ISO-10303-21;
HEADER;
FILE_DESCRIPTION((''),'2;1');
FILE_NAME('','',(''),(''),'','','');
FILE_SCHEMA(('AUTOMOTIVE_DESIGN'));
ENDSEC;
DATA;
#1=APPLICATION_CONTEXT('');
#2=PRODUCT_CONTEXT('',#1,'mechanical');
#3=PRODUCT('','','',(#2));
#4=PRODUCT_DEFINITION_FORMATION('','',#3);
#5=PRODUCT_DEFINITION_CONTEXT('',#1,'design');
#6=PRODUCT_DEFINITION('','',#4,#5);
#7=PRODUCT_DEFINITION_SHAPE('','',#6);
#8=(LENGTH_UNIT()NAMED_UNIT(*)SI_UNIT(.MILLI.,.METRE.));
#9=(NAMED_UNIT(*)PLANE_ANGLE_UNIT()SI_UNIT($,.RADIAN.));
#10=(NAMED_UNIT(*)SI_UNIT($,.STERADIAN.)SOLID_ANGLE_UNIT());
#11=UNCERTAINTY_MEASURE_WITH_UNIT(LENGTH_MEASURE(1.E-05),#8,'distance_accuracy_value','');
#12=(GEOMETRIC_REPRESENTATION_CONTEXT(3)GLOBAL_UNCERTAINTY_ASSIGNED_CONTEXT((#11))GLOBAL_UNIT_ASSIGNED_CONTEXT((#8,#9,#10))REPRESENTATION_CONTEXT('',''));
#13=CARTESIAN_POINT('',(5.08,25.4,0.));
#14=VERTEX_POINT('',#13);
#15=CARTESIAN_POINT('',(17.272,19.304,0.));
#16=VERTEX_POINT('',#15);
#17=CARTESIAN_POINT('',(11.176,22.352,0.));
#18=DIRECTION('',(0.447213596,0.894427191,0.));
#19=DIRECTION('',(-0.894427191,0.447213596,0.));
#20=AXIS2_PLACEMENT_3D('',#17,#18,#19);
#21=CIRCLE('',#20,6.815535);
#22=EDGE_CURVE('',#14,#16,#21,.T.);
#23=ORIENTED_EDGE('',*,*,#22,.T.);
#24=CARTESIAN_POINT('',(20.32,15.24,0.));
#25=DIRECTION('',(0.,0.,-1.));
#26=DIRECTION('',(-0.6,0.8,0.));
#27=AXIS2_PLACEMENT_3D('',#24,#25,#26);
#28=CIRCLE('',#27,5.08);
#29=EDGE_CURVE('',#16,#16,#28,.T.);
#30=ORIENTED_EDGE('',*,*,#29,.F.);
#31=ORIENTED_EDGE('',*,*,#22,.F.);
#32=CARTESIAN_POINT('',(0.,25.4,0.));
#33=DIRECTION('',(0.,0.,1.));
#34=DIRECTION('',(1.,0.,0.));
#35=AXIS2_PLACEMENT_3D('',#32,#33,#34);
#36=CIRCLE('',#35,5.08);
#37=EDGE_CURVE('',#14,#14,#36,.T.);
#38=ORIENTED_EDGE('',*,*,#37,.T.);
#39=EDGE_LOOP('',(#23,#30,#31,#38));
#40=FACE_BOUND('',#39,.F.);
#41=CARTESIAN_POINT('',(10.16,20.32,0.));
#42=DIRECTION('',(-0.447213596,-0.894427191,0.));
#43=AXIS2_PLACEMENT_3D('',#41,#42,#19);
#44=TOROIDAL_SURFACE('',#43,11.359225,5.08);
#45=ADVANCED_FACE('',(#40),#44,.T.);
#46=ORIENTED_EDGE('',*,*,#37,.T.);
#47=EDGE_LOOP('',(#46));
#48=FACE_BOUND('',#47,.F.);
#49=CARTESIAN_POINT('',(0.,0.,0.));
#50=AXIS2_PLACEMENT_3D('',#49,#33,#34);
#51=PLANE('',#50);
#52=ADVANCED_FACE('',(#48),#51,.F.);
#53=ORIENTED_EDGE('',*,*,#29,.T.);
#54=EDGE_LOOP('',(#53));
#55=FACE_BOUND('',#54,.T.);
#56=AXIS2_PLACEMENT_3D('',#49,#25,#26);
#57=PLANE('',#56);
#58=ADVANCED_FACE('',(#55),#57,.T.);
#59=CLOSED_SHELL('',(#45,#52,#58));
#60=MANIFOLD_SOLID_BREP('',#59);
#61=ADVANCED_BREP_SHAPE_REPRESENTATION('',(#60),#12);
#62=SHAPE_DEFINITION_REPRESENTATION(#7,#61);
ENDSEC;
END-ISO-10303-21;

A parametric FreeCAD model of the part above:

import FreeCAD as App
import Part
import Sketcher
Q = App.Units.Quantity

doc = App.newDocument("Part")
body = doc.addObject("PartDesign::Body", "Body")

sketch1 = doc.addObject("Sketcher::SketchObject", "Sketch")
body.addObject(sketch1)
sketch1.AttachmentSupport = (doc.XY_Plane, [""])
sketch1.MapMode = "FlatFace"
sketch1.addGeometry(Part.Circle(App.Vector(0, 25, 0), App.Vector(0, 0, 1), 5), False)
sketch1.addGeometry(Part.LineSegment(App.Vector(10, 20, 0), App.Vector(15, 29, 0)), True)
sketch1.addConstraint([
    Sketcher.Constraint("PointOnObject", 0, 3, -2),
    Sketcher.Constraint("Diameter", 0, Q("0.4 in")),
    Sketcher.Constraint("DistanceY", -1, 1, 0, 3, Q("1 in")),
    Sketcher.Constraint("DistanceX", -1, 1, 1, 1, Q("0.4 in")),
    Sketcher.Constraint("DistanceY", -1, 1, 1, 1, Q("0.8 in")),
    Sketcher.Constraint("Distance", 1, Q("0.3937 in")),
    Sketcher.Constraint("DistanceX", -1, 1, 1, 2, 14.6321),
])
revolution = doc.addObject("PartDesign::Revolution", "Revolution")
body.addObject(revolution)
revolution.Profile = sketch1
revolution.ReferenceAxis = (sketch1, ["Axis0"])
revolution.Angle = 180

doc.recompute()
